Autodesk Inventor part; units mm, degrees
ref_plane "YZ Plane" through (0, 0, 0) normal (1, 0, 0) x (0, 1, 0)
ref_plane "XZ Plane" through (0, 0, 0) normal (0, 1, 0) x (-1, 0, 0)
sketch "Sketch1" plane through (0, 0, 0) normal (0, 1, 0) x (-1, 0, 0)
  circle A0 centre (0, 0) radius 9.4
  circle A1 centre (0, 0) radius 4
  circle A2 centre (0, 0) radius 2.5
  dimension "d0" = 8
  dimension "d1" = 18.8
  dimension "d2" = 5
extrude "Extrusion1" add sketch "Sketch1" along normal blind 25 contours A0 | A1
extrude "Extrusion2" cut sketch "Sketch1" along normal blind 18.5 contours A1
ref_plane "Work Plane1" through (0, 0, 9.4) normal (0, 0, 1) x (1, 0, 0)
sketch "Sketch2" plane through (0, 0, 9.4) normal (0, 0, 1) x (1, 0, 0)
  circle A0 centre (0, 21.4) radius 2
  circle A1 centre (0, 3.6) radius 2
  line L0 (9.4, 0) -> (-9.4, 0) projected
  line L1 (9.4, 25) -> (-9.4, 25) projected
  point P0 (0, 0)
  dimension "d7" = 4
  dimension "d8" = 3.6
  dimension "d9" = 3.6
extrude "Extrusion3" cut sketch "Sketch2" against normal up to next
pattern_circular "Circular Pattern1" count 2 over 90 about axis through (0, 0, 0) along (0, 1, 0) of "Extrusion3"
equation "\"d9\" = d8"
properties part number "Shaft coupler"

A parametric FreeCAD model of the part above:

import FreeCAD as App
import Part
import Sketcher
from FreeCAD import Vector

doc = App.newDocument("Part")
body = doc.addObject("PartDesign::Body", "Body")

sketch1 = doc.addObject("Sketcher::SketchObject", "Sketch")
body.addObject(sketch1)
sketch1.AttachmentSupport = (doc.XZ_Plane, [""])
sketch1.MapMode = "FlatFace"
sketch1.addGeometry([
    Part.Circle(Vector(0, 0, 0), Vector(0, 0, 1), 9.4),
    Part.Circle(Vector(0, 0, 0), Vector(0, 0, 1), 2.5),
], False)
sketch1.addConstraint([
    Sketcher.Constraint("Coincident", 0, 3, -1, 1),
    Sketcher.Constraint("Coincident", 1, 3, -1, 1),
    Sketcher.Constraint("Diameter", 1, 5.0),
    Sketcher.Constraint("Diameter", 0, 18.8),
])
pad1 = doc.addObject("PartDesign::Pad", "Pad")
body.addObject(pad1)
pad1.Profile = sketch1
pad1.Length = 25
pad1.Reversed = True

sketch2 = doc.addObject("Sketcher::SketchObject", "Sketch001")
body.addObject(sketch2)
sketch2.AttachmentSupport = (doc.XZ_Plane, [""])
sketch2.MapMode = "FlatFace"
sketch2.addGeometry([
    Part.Circle(Vector(0, 0, 0), Vector(0, 0, 1), 4),
    Part.Circle(Vector(0, 0, 0), Vector(0, 0, 1), 2.5),
], False)
sketch2.addConstraint([
    Sketcher.Constraint("Coincident", 0, 3, -1, 1),
    Sketcher.Constraint("Coincident", 1, 3, -1, 1),
    Sketcher.Constraint("Diameter", 0, 8.0),
    Sketcher.Constraint("Diameter", 1, 5.0),
])
pocket1 = doc.addObject("PartDesign::Pocket", "Pocket")
body.addObject(pocket1)
pocket1.Profile = sketch2
pocket1.Length = 18.5

sketch3 = doc.addObject("Sketcher::SketchObject", "Sketch002")
body.addObject(sketch3)
sketch3.AttachmentSupport = (doc.XY_Plane, [""])
sketch3.MapMode = "FlatFace"
sketch3.AttachmentOffset = App.Placement(Vector(0, 0, 9.4), App.Rotation())
sketch3.addGeometry([
    Part.Circle(Vector(0, 21.4, 0), Vector(0, 0, 1), 2),
    Part.Circle(Vector(0, 3.6, 0), Vector(0, 0, 1), 2),
], False)
sketch3.addConstraint([
    Sketcher.Constraint("Equal", 0, 1),
    Sketcher.Constraint("PointOnObject", 0, 3, -2),
    Sketcher.Constraint("PointOnObject", 1, 3, -2),
    Sketcher.Constraint("Diameter", 0, 4.0),
    Sketcher.Constraint("DistanceY", -1, 1, 1, 3, 3.6),
    Sketcher.Constraint("DistanceY", -1, 1, 0, 3, 21.4),
])
pocket2 = doc.addObject("PartDesign::Pocket", "Pocket001")
body.addObject(pocket2)
pocket2.Profile = sketch3
pocket2.Length = 7.9
doc.recompute()

polarpattern = doc.addObject("PartDesign::PolarPattern", "PolarPattern")
body.addObject(polarpattern)
polarpattern.Originals = [pocket2]
polarpattern.Axis = (doc.Y_Axis, [""])
polarpattern.Angle = 90
polarpattern.Occurrences = 2
body.Tip = polarpattern

doc.recompute()
